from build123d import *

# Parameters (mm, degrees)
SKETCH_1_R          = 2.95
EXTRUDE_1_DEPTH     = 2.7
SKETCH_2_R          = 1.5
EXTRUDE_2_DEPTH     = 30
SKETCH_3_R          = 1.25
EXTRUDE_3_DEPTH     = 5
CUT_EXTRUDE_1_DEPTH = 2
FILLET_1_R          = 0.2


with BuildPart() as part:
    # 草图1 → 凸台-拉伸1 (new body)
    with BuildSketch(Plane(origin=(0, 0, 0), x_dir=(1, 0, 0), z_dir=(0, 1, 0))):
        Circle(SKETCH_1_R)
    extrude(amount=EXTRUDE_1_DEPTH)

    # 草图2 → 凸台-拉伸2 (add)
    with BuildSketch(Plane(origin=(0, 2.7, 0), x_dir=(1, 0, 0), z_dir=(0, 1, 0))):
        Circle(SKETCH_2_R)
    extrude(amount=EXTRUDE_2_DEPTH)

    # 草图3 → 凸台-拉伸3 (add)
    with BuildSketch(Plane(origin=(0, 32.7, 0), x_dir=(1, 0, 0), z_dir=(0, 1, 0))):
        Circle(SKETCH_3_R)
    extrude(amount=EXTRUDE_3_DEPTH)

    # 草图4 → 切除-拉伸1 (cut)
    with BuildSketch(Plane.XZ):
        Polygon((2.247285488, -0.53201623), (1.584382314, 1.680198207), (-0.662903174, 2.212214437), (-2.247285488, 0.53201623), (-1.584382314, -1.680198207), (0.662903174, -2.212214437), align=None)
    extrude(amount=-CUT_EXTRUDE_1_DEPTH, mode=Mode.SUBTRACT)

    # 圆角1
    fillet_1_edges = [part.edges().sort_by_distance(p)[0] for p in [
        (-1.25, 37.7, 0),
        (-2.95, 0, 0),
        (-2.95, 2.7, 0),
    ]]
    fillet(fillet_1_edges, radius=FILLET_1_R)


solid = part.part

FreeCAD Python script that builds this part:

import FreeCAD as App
import Part
import Sketcher

V = App.Vector


def edges_at(feature, points):
    """Names of the edges that pass closest to the given points."""
    edges = feature.Shape.Edges
    near = lambda p: min(range(len(edges)), key=lambda i: edges[i].distToShape(Part.Vertex(*p))[0])
    return sorted({f"Edge{near(p) + 1}" for p in points})

doc = App.newDocument("Part")
body = doc.addObject("PartDesign::Body", "Body")

# Sketch on XZ plane
sketch1 = doc.addObject("Sketcher::SketchObject", "Sketch")
body.addObject(sketch1)
sketch1.AttachmentSupport = (doc.XZ_Plane, [""])
sketch1.MapMode = "FlatFace"
sketch1.addGeometry(Part.Circle(V(0, 0, 0), V(0, 0, 1), 2.95), False)
sketch1.addConstraint([
    Sketcher.Constraint("Coincident", 0, 3, -1, 1),
    Sketcher.Constraint("Diameter", 0, 5.9),
])
pad1 = doc.addObject("PartDesign::Pad", "Pad")
body.addObject(pad1)
pad1.Profile = sketch1
pad1.Length = 2.7
pad1.Reversed = True

# Sketch on XZ plane
sketch2 = doc.addObject("Sketcher::SketchObject", "Sketch001")
body.addObject(sketch2)
sketch2.AttachmentSupport = (doc.XZ_Plane, [""])
sketch2.MapMode = "FlatFace"
sketch2.AttachmentOffset = App.Placement(V(0, 0, -2.7), App.Rotation())
sketch2.addGeometry(Part.Circle(V(0, 0, 0), V(0, 0, 1), 1.5), False)
sketch2.addConstraint([
    Sketcher.Constraint("Coincident", 0, 3, -1, 1),
    Sketcher.Constraint("Diameter", 0, 3.0),
])
pad2 = doc.addObject("PartDesign::Pad", "Pad001")
body.addObject(pad2)
pad2.Profile = sketch2
pad2.Length = 30
pad2.Reversed = True

# Sketch on XZ plane
sketch3 = doc.addObject("Sketcher::SketchObject", "Sketch002")
body.addObject(sketch3)
sketch3.AttachmentSupport = (doc.XZ_Plane, [""])
sketch3.MapMode = "FlatFace"
sketch3.AttachmentOffset = App.Placement(V(0, 0, -32.7), App.Rotation())
sketch3.addGeometry(Part.Circle(V(0, 0, 0), V(0, 0, 1), 1.25), False)
sketch3.addConstraint([
    Sketcher.Constraint("Coincident", 0, 3, -1, 1),
    Sketcher.Constraint("Diameter", 0, 2.5),
])
pad3 = doc.addObject("PartDesign::Pad", "Pad002")
body.addObject(pad3)
pad3.Profile = sketch3
pad3.Length = 5
pad3.Reversed = True

# Sketch on XZ plane
sketch4 = doc.addObject("Sketcher::SketchObject", "Sketch003")
body.addObject(sketch4)
sketch4.AttachmentSupport = (doc.XZ_Plane, [""])
sketch4.MapMode = "FlatFace"
sketch4.addGeometry([
    Part.LineSegment(V(2.247285, -0.532016, 0), V(1.584382, 1.680198, 0)),  # 0
    Part.LineSegment(V(1.584382, 1.680198, 0), V(-0.662903, 2.212214, 0)),  # 1
    Part.LineSegment(V(-0.662903, 2.212214, 0), V(-2.247285, 0.532016, 0)),  # 2
    Part.LineSegment(V(-2.247285, 0.532016, 0), V(-1.584382, -1.680198, 0)),  # 3
    Part.LineSegment(V(-1.584382, -1.680198, 0), V(0.662903, -2.212214, 0)),  # 4
    Part.LineSegment(V(0.662903, -2.212214, 0), V(2.247285, -0.532016, 0)),  # 5
], False)
sketch4.addConstraint([
    Sketcher.Constraint("Coincident", 0, 2, 1, 1),
    Sketcher.Constraint("Coincident", 1, 2, 2, 1),
    Sketcher.Constraint("Coincident", 2, 2, 3, 1),
    Sketcher.Constraint("Coincident", 3, 2, 4, 1),
    Sketcher.Constraint("Coincident", 4, 2, 5, 1),
    Sketcher.Constraint("Coincident", 5, 2, 0, 1),
    Sketcher.Constraint("Symmetric", 0, 2, 3, 2, -1, 1),
    Sketcher.Constraint("Symmetric", 1, 2, 4, 2, -1, 1),
    Sketcher.Constraint("Symmetric", 2, 2, 5, 2, -1, 1),
    Sketcher.Constraint("Equal", 0, 1),
    Sketcher.Constraint("Equal", 1, 2),
    Sketcher.Constraint("Distance", 0, 2.309401),
    Sketcher.Constraint("DistanceY", -1, 1, 0, 2, 1.680198),
    Sketcher.Constraint("DistanceY", 2, 2, 1, 2, 1.680198),
    Sketcher.Constraint("DistanceY", 2, 2, 0, 2, 1.148182),
])
pocket1 = doc.addObject("PartDesign::Pocket", "Pocket")
body.addObject(pocket1)
pocket1.Profile = sketch4
pocket1.Length = 2
doc.recompute()

fillet = doc.addObject("PartDesign::Fillet", "Fillet")
body.addObject(fillet)
fillet.Base = (pocket1, edges_at(pocket1, [(-1.25, 37.7, 0), (-2.95, 0, 0), (-2.95, 2.7, 0)]))
fillet.Radius = 0.2

doc.recompute()
